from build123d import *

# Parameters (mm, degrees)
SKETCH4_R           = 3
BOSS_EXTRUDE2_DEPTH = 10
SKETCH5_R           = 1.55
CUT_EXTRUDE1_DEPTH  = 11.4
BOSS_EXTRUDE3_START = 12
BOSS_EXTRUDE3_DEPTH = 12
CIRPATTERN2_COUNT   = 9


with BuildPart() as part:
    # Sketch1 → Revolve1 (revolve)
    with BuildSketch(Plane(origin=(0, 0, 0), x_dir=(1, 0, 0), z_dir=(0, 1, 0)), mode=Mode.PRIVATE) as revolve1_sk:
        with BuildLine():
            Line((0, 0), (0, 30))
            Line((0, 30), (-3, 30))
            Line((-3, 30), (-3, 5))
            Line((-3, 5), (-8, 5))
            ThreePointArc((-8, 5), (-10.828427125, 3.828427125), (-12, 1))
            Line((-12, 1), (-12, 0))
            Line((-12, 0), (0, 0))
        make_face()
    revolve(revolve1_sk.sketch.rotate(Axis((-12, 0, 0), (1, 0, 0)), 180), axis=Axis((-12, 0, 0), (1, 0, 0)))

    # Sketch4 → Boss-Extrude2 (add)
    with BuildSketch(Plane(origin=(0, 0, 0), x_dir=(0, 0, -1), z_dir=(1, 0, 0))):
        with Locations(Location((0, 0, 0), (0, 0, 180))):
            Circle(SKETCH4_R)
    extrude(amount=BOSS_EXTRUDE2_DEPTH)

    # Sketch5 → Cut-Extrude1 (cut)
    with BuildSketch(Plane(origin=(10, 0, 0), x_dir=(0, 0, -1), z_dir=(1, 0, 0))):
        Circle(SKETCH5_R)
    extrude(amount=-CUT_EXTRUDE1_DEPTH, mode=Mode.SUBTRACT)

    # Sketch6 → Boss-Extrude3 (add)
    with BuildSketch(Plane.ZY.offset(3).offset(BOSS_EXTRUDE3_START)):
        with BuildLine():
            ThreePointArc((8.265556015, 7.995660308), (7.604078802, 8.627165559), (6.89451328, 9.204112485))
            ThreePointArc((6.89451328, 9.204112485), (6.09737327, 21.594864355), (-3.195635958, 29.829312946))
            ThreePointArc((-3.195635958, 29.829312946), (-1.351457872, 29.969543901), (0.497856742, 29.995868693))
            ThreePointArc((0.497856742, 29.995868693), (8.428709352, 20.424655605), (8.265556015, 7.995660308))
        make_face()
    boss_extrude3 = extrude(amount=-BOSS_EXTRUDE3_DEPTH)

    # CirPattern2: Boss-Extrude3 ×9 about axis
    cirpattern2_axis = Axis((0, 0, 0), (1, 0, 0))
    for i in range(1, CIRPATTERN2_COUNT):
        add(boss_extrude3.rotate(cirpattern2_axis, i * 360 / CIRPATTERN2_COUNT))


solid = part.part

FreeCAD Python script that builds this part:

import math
import FreeCAD as App
import Part
import Sketcher

doc = App.newDocument("Part")
body = doc.addObject("PartDesign::Body", "Body")

sketch1 = doc.addObject("Sketcher::SketchObject", "Sketch")
body.addObject(sketch1)
sketch1.AttachmentSupport = (doc.XZ_Plane, [""])
sketch1.MapMode = "FlatFace"
sketch1.addGeometry([
    Part.LineSegment(App.Vector(0, 0, 0), App.Vector(0, -30, 0)),
    Part.LineSegment(App.Vector(0, -30, 0), App.Vector(-3, -30, 0)),
    Part.LineSegment(App.Vector(-3, -30, 0), App.Vector(-3, -5, 0)),
    Part.LineSegment(App.Vector(-3, -5, 0), App.Vector(-8, -5, 0)),
    Part.ArcOfCircle(Part.Circle(App.Vector(-8, -1, 0), App.Vector(0, 0, 1), 4), math.radians(180), math.radians(270)),
    Part.LineSegment(App.Vector(-12, -1, 0), App.Vector(-12, 0, 0)),
    Part.LineSegment(App.Vector(-12, 0, 0), App.Vector(0, 0, 0)),
], False)
sketch1.addConstraint([
    Sketcher.Constraint("Coincident", 0, 2, 1, 1),
    Sketcher.Constraint("Coincident", 1, 2, 2, 1),
    Sketcher.Constraint("Coincident", 2, 2, 3, 1),
    Sketcher.Constraint("Tangent", 3, 2, 4, 2),
    Sketcher.Constraint("Tangent", 4, 1, 5, 1),
    Sketcher.Constraint("Coincident", 5, 2, 6, 1),
    Sketcher.Constraint("Coincident", 6, 2, 0, 1),
    Sketcher.Constraint("Vertical", 0),
    Sketcher.Constraint("Horizontal", 1),
    Sketcher.Constraint("Vertical", 2),
    Sketcher.Constraint("Horizontal", 3),
    Sketcher.Constraint("Vertical", 5),
    Sketcher.Constraint("Horizontal", 6),
    Sketcher.Constraint("Coincident", 6, 2, -1, 1),
    Sketcher.Constraint("Radius", 4, 4.0),
    Sketcher.Constraint("DistanceX", 1, 2, 1, 1, 3.0),
    Sketcher.Constraint("DistanceX", 3, 2, 3, 1, 5.0),
    Sketcher.Constraint("DistanceY", 0, 2, 0, 1, 30.0),
    Sketcher.Constraint("DistanceY", 2, 1, 2, 2, 25.0),
])
revolution = doc.addObject("PartDesign::Revolution", "Revolution")
body.addObject(revolution)
revolution.Profile = sketch1
revolution.ReferenceAxis = (sketch1, ["H_Axis"])
revolution.Angle = 360

sketch2 = doc.addObject("Sketcher::SketchObject", "Sketch001")
body.addObject(sketch2)
sketch2.AttachmentSupport = (doc.YZ_Plane, [""])
sketch2.MapMode = "FlatFace"
sketch2.addGeometry(Part.Circle(App.Vector(0, 0, 0), App.Vector(0, 0, 1), 3), False)
sketch2.addConstraint([
    Sketcher.Constraint("Coincident", 0, 3, -1, 1),
    Sketcher.Constraint("Diameter", 0, 6.0),
])
pad1 = doc.addObject("PartDesign::Pad", "Pad")
body.addObject(pad1)
pad1.Profile = sketch2
pad1.Length = 10

sketch3 = doc.addObject("Sketcher::SketchObject", "Sketch002")
body.addObject(sketch3)
sketch3.AttachmentSupport = (doc.YZ_Plane, [""])
sketch3.MapMode = "FlatFace"
sketch3.AttachmentOffset = App.Placement(App.Vector(0, 0, 10), App.Rotation())
sketch3.addGeometry(Part.Circle(App.Vector(0, 0, 0), App.Vector(0, 0, 1), 1.6), False)
sketch3.addConstraint([
    Sketcher.Constraint("Coincident", 0, 3, -1, 1),
    Sketcher.Constraint("Diameter", 0, 3.1),
])
pocket1 = doc.addObject("PartDesign::Pocket", "Pocket")
body.addObject(pocket1)
pocket1.Profile = sketch3
pocket1.Length = 11.4

sketch4 = doc.addObject("Sketcher::SketchObject", "Sketch003")
body.addObject(sketch4)
sketch4.AttachmentSupport = (doc.YZ_Plane, [""])
sketch4.MapMode = "FlatFace"
sketch4.AttachmentOffset = App.Placement(App.Vector(0, 0, -15), App.Rotation())
sketch4.addGeometry([
    Part.ArcOfCircle(Part.Circle(App.Vector(0, 0, 0), App.Vector(0, 0, 1), 11.5), math.radians(36.84), math.radians(45.95)),
    Part.ArcOfCircle(Part.Circle(App.Vector(14.4, -8.5, 0), App.Vector(0, 0, 1), 18), math.radians(30), math.radians(111)),
    Part.ArcOfCircle(Part.Circle(App.Vector(0, 0, 0), App.Vector(0, 0, 1), 30), math.radians(-6.11), math.radians(0.95)),
    Part.ArcOfCircle(Part.Circle(App.Vector(14.4, -8.5, 0), App.Vector(0, 0, 1), 16.3), math.radians(19), math.radians(109)),
], False)
sketch4.addConstraint([
    Sketcher.Constraint("Coincident", 0, 2, 1, 2),
    Sketcher.Constraint("Coincident", 1, 1, 2, 2),
    Sketcher.Constraint("Coincident", 2, 1, 3, 1),
    Sketcher.Constraint("Coincident", 3, 2, 0, 1),
    Sketcher.Constraint("Coincident", 0, 3, -1, 1),
    Sketcher.Constraint("Coincident", 2, 3, -1, 1),
    Sketcher.Constraint("Coincident", 3, 3, 1, 3),
    Sketcher.Constraint("Radius", 1, 18.0),
    Sketcher.Constraint("Radius", 2, 30.0),
    Sketcher.Constraint("Radius", 0, 11.5),
    Sketcher.Constraint("Radius", 3, 16.3),
    Sketcher.Constraint("DistanceY", 1, 1, 0, 2, 7.767699),
    Sketcher.Constraint("DistanceX", -1, 1, 1, 3, 14.43189),
])
pad2 = doc.addObject("PartDesign::Pad", "Pad001")
body.addObject(pad2)
pad2.Profile = sketch4
pad2.Length = 12
doc.recompute()

polarpattern = doc.addObject("PartDesign::PolarPattern", "PolarPattern")
body.addObject(polarpattern)
polarpattern.Originals = [pad2]
polarpattern.Axis = (doc.X_Axis, [""])
polarpattern.Angle = 360
polarpattern.Occurrences = 9
body.Tip = polarpattern

doc.recompute()
